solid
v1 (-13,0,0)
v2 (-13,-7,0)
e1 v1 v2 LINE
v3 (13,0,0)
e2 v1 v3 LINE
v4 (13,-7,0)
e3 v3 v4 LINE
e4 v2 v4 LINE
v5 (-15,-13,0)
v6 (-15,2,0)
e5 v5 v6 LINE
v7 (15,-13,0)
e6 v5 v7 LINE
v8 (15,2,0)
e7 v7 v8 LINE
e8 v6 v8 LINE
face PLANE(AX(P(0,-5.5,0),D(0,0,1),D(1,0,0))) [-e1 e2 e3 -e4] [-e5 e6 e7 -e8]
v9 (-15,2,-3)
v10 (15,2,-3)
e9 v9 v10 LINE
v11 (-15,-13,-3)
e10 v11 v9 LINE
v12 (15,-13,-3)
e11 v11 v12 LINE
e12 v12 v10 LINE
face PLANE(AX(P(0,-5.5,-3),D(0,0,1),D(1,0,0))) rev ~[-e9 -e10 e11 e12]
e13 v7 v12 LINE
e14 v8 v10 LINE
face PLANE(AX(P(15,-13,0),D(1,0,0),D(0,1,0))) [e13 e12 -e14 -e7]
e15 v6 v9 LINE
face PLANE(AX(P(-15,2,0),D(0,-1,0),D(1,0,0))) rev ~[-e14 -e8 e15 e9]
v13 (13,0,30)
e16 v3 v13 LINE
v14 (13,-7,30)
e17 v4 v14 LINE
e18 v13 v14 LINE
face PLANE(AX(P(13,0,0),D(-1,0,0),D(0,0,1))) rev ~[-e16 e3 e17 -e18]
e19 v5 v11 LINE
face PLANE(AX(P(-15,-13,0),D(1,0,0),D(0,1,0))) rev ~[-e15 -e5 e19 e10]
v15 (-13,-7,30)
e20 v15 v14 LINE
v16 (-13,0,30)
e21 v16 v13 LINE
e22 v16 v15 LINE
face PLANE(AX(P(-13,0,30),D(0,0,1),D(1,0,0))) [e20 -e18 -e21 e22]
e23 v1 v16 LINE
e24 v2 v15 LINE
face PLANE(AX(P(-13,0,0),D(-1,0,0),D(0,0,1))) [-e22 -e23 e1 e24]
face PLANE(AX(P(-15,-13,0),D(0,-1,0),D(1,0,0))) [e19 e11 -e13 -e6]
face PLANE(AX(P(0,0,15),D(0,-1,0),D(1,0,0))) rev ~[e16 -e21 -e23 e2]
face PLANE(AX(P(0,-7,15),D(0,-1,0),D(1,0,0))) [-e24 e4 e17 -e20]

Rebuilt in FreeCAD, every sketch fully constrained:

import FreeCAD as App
import Part
import Sketcher

doc = App.newDocument("Part")
body = doc.addObject("PartDesign::Body", "Body")

# Sketch on XZ plane
sketch1 = body.newObject("Sketcher::SketchObject", "Sketch")
sketch1.AttachmentSupport = (doc.getObject("XZ_Plane"), [""])
sketch1.MapMode = "FlatFace"
sketch1.addGeometry([
    Part.LineSegment(App.Vector(-13, 30, 0), App.Vector(-13, 0, 0)),
    Part.LineSegment(App.Vector(-13, 0, 0), App.Vector(13, 0, 0)),
    Part.LineSegment(App.Vector(13, 0, 0), App.Vector(13, 30, 0)),
    Part.LineSegment(App.Vector(13, 30, 0), App.Vector(-13, 30, 0)),
], False)
sketch1.addConstraint([
    Sketcher.Constraint("Coincident", 0, 2, 1, 1),
    Sketcher.Constraint("Coincident", 1, 2, 2, 1),
    Sketcher.Constraint("Coincident", 2, 2, 3, 1),
    Sketcher.Constraint("Coincident", 3, 2, 0, 1),
    Sketcher.Constraint("Vertical", 0),
    Sketcher.Constraint("Horizontal", 1),
    Sketcher.Constraint("Vertical", 2),
    Sketcher.Constraint("Horizontal", 3),
    Sketcher.Constraint("Symmetric", 0, 2, 1, 2, -1, 1),
    Sketcher.Constraint("DistanceX", 1, 1, 1, 2, 26.0),
    Sketcher.Constraint("DistanceY", 0, 2, 0, 1, 30.0),
])
pad1 = body.newObject("PartDesign::Pad", "Pad")
pad1.Profile = sketch1
pad1.Length = 7

# Sketch on XY plane
sketch2 = body.newObject("Sketcher::SketchObject", "Sketch001")
sketch2.AttachmentSupport = (doc.getObject("XY_Plane"), [""])
sketch2.MapMode = "FlatFace"
sketch2.addGeometry([
    Part.LineSegment(App.Vector(-15, 2, 0), App.Vector(-15, -13, 0)),
    Part.LineSegment(App.Vector(-15, -13, 0), App.Vector(15, -13, 0)),
    Part.LineSegment(App.Vector(15, -13, 0), App.Vector(15, 2, 0)),
    Part.LineSegment(App.Vector(15, 2, 0), App.Vector(-15, 2, 0)),
], False)
sketch2.addConstraint([
    Sketcher.Constraint("Coincident", 0, 2, 1, 1),
    Sketcher.Constraint("Coincident", 1, 2, 2, 1),
    Sketcher.Constraint("Coincident", 2, 2, 3, 1),
    Sketcher.Constraint("Coincident", 3, 2, 0, 1),
    Sketcher.Constraint("Vertical", 0),
    Sketcher.Constraint("Horizontal", 1),
    Sketcher.Constraint("Vertical", 2),
    Sketcher.Constraint("Horizontal", 3),
    Sketcher.Constraint("DistanceX", 1, 1, 1, 2, 30.0),
    Sketcher.Constraint("DistanceY", 0, 2, 0, 1, 15.0),
    Sketcher.Constraint("DistanceX", 0, 2, -1, 1, 15.0),
    Sketcher.Constraint("DistanceY", 0, 2, -1, 1, 13.0),
])
pad2 = body.newObject("PartDesign::Pad", "Pad001")
pad2.Profile = sketch2
pad2.Length = 3
pad2.Reversed = True

doc.recompute()
